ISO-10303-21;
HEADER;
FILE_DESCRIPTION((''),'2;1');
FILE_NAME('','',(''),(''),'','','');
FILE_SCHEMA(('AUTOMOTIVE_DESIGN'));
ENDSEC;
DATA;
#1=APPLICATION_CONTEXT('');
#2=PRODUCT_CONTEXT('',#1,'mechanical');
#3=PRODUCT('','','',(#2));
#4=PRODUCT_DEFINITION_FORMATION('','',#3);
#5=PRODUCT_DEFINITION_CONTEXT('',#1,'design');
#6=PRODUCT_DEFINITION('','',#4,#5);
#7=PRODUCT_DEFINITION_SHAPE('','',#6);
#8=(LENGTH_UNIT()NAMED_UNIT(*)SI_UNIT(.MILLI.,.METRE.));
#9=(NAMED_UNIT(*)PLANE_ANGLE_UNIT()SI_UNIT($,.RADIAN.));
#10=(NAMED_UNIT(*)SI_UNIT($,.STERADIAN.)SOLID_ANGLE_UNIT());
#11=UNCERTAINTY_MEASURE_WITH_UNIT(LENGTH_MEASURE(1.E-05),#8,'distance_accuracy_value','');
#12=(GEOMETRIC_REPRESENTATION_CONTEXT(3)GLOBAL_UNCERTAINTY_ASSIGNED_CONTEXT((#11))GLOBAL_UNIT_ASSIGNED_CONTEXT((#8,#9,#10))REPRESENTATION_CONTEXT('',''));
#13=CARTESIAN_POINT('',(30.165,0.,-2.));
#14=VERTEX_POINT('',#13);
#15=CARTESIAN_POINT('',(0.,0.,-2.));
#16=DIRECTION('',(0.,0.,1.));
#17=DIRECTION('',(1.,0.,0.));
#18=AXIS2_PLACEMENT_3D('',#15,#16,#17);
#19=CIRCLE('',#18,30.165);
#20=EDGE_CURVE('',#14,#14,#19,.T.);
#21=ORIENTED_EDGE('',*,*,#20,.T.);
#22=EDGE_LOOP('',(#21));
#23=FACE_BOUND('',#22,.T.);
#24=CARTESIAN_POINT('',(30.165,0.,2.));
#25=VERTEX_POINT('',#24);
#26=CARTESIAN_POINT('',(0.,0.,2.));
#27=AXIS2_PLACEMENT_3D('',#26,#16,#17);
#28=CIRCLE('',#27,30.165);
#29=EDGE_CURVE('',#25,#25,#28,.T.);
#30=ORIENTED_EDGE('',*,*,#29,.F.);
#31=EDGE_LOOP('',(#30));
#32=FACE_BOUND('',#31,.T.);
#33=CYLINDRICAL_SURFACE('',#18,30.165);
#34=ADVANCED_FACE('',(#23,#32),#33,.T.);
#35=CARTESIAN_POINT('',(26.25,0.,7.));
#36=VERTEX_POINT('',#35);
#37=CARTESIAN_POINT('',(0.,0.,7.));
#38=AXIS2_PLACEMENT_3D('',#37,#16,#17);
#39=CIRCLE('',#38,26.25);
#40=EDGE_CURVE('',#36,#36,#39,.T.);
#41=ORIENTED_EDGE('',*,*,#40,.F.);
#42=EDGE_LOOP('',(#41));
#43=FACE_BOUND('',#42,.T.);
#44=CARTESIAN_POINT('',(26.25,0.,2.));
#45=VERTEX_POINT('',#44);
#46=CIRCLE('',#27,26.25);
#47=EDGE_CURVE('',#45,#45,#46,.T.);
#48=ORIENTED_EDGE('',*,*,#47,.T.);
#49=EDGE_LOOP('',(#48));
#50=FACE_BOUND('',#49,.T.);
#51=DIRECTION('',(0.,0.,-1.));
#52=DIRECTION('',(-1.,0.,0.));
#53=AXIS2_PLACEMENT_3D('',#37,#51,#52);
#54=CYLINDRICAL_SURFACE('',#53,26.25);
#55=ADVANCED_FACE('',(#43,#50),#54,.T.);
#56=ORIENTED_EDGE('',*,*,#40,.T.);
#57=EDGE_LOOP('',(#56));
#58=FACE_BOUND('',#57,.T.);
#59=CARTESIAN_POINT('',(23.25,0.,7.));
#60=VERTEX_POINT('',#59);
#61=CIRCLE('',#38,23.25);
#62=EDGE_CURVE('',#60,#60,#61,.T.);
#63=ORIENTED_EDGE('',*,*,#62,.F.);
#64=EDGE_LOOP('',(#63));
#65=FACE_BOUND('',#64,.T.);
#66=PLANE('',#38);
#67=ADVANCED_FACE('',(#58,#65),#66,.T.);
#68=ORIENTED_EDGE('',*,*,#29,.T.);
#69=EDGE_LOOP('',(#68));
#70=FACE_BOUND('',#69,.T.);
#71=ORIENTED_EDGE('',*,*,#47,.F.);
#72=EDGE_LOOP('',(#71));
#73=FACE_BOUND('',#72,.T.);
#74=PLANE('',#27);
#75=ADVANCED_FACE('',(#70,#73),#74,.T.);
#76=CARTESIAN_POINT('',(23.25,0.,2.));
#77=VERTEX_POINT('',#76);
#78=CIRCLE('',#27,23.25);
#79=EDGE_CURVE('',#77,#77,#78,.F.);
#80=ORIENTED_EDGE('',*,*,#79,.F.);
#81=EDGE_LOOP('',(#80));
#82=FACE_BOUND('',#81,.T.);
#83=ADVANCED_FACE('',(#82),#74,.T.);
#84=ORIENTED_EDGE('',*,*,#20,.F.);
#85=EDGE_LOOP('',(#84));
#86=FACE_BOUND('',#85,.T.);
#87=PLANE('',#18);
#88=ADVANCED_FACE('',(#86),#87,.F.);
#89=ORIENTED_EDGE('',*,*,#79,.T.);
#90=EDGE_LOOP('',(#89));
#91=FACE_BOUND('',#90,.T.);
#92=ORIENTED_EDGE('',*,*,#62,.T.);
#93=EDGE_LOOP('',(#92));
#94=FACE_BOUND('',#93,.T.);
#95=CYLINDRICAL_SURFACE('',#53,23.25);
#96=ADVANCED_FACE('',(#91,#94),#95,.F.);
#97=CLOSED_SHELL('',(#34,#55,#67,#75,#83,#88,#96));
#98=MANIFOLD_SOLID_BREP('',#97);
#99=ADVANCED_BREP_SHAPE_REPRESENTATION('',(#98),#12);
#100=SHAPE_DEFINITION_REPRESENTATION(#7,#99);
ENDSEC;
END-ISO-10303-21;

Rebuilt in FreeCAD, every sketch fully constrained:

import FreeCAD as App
import Part
import Sketcher
Q = App.Units.Quantity

doc = App.newDocument("Part")
body = doc.addObject("PartDesign::Body", "Body")

# Sketch on XY plane
sketch1 = body.newObject("Sketcher::SketchObject", "Sketch")
sketch1.AttachmentSupport = (doc.getObject("XY_Plane"), [""])
sketch1.MapMode = "FlatFace"
sketch1.addGeometry(Part.Circle(App.Vector(0, 0, 0), App.Vector(0, 0, 1), 30), False)
sketch1.addConstraint(Sketcher.Constraint("Coincident", 0, 3, -1, 1))
sketch1.addConstraint(Sketcher.Constraint("Diameter", 0, Q("60.33 mm")))
pad1 = body.newObject("PartDesign::Pad", "Pad")
pad1.Profile = sketch1
pad1.Type = "TwoLengths"
pad1.Length = 2
pad1.Length2 = 2

# Sketch on XY plane
sketch2 = body.newObject("Sketcher::SketchObject", "Sketch001")
sketch2.AttachmentSupport = (doc.getObject("XY_Plane"), [""])
sketch2.MapMode = "FlatFace"
sketch2.AttachmentOffset = App.Placement(App.Vector(0, 0, 2), App.Rotation())
sketch2.addGeometry(Part.Circle(App.Vector(0, 0, 0), App.Vector(0, 0, 1), 26), False)
sketch2.addGeometry(Part.Circle(App.Vector(0, 0, 0), App.Vector(0, 0, 1), 23), False)
sketch2.addConstraint(Sketcher.Constraint("Coincident", 0, 3, -1, 1))
sketch2.addConstraint(Sketcher.Constraint("Coincident", 1, 3, -1, 1))
sketch2.addConstraint(Sketcher.Constraint("Diameter", 0, Q("52.5 mm")))
sketch2.addConstraint(Sketcher.Constraint("Diameter", 1, Q("46.5 mm")))
pad2 = body.newObject("PartDesign::Pad", "Pad001")
pad2.Profile = sketch2
pad2.Length = 5

doc.recompute()
